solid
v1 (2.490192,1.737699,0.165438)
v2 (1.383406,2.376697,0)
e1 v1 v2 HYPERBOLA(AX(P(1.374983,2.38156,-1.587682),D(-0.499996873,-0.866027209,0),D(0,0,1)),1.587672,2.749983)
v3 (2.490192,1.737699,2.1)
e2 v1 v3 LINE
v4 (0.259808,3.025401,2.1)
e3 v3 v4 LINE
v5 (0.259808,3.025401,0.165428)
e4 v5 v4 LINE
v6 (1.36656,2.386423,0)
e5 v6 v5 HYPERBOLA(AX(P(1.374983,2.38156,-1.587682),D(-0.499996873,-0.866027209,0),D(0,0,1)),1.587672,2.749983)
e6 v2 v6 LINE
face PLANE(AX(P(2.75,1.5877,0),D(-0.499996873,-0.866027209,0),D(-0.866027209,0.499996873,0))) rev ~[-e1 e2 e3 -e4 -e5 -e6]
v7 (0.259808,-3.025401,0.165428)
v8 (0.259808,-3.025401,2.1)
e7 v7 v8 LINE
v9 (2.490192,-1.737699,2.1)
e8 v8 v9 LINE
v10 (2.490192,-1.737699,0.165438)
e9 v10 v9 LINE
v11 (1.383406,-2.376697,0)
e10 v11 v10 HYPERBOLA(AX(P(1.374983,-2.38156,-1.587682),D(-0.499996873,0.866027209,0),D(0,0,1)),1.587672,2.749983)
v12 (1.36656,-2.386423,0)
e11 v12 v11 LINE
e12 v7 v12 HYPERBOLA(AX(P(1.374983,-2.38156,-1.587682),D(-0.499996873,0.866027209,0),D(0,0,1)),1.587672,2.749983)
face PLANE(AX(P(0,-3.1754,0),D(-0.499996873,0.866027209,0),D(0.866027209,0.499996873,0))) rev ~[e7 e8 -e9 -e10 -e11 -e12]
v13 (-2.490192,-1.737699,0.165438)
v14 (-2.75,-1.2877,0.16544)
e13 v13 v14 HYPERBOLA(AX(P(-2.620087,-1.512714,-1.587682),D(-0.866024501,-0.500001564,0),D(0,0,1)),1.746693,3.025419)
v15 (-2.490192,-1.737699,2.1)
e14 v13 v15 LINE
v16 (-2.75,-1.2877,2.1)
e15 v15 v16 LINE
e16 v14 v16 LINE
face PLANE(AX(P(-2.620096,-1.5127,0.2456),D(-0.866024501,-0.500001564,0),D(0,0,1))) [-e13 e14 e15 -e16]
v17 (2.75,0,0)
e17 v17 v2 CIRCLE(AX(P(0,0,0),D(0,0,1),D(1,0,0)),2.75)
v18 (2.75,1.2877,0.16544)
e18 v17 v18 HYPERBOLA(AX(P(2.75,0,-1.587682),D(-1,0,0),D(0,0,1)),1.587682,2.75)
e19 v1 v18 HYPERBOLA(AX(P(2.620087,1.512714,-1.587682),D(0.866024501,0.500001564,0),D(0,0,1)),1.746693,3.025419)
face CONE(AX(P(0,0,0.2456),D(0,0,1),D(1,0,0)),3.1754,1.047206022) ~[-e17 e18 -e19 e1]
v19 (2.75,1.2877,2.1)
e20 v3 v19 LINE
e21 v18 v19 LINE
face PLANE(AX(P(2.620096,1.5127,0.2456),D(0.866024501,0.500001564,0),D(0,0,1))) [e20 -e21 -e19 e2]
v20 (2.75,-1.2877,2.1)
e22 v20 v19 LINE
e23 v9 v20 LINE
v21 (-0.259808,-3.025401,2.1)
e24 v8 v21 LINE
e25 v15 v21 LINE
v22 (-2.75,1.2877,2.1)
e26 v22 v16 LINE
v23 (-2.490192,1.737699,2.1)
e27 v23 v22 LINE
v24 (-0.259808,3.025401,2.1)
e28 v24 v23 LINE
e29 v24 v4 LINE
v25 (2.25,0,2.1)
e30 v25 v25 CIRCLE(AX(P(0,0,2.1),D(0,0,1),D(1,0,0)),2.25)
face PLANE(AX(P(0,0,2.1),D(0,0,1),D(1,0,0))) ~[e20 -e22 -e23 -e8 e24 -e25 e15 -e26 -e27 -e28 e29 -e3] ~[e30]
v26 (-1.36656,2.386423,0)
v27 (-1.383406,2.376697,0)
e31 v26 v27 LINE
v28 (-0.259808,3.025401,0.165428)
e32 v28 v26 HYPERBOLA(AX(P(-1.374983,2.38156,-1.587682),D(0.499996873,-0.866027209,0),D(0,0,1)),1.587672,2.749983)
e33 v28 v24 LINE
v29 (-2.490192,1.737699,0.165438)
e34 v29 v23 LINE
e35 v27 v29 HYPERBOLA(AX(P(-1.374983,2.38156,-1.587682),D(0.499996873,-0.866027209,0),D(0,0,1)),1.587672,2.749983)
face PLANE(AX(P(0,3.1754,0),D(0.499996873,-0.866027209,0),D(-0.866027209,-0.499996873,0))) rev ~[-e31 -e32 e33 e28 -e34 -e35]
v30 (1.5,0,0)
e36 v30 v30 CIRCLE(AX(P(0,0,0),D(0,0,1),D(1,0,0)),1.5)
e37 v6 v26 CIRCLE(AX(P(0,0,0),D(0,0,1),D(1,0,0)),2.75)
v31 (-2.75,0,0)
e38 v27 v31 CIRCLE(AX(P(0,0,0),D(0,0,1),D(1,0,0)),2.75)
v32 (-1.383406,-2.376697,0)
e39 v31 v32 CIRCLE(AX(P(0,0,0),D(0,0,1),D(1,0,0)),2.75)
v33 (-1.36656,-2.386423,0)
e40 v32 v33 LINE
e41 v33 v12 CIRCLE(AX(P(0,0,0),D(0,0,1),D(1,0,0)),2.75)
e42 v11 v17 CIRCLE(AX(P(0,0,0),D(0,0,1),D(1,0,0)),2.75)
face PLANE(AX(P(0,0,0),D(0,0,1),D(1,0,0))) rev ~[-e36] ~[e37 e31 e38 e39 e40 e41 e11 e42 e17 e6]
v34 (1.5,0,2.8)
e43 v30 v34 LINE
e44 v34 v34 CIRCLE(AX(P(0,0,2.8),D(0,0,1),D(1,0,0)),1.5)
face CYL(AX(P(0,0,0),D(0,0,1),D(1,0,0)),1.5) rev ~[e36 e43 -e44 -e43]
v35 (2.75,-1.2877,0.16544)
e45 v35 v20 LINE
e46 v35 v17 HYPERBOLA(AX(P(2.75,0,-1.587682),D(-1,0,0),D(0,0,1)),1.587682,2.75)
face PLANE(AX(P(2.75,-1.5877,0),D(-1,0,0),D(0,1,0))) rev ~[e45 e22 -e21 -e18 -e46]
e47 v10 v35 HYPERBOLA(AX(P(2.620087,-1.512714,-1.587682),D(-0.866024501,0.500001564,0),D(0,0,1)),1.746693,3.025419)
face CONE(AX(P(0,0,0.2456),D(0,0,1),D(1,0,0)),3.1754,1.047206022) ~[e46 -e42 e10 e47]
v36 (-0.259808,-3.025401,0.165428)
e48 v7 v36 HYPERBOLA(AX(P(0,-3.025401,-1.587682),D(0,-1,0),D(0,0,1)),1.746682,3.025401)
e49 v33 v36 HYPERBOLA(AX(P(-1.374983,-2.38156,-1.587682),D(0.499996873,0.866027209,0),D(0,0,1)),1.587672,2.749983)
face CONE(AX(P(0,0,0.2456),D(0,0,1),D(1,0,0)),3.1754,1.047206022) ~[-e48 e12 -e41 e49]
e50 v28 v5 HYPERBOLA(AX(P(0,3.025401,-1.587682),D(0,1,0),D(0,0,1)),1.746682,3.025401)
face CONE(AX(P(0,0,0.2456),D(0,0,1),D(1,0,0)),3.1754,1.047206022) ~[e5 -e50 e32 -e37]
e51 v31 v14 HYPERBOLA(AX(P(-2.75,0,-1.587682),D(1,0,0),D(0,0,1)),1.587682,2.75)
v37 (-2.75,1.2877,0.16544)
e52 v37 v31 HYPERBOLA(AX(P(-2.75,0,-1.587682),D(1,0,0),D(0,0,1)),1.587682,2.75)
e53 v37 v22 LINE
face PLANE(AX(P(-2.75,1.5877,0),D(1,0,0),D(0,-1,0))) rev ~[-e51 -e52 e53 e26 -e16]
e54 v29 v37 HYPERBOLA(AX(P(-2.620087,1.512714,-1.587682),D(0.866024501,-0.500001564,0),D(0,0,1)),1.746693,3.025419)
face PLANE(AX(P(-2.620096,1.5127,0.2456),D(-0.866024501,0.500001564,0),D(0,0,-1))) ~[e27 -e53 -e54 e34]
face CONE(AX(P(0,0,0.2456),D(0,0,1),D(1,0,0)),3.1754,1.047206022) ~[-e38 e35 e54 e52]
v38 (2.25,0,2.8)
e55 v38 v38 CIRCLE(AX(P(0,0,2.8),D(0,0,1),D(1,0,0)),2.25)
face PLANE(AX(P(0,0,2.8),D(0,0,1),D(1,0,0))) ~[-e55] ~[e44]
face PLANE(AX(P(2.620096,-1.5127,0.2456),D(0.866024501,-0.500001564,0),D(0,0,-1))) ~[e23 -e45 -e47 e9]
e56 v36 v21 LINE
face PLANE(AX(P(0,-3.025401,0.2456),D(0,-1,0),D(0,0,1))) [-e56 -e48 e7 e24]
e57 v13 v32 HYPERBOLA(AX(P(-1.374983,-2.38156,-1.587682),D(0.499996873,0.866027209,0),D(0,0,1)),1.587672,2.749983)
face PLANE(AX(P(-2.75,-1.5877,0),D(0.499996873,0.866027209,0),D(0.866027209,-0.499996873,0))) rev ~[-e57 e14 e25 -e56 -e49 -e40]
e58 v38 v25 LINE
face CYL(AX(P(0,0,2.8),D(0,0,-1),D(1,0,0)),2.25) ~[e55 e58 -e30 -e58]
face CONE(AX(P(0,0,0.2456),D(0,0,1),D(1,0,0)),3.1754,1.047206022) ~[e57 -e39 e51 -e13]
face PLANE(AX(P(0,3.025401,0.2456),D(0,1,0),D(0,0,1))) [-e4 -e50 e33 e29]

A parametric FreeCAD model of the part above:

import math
import FreeCAD as App
import Part
import Sketcher

V = App.Vector
Q = App.Units.Quantity


def edges_at(feature, points):
    """Names of the edges that pass closest to the given points."""
    edges = feature.Shape.Edges
    near = lambda p: min(range(len(edges)), key=lambda i: edges[i].distToShape(Part.Vertex(*p))[0])
    return sorted({f"Edge{near(p) + 1}" for p in points})

doc = App.newDocument("Part")
body = doc.addObject("PartDesign::Body", "Body")

sketch1 = doc.addObject("Sketcher::SketchObject", "Sketch")
body.addObject(sketch1)
sketch1.AttachmentSupport = (doc.XZ_Plane, [""])
sketch1.MapMode = "FlatFace"
sketch1.addGeometry([
    Part.LineSegment(V(2.75, 0, 0), V(1.5, 0, 0)),
    Part.LineSegment(V(1.5, 0, 0), V(1.5, 2.8, 0)),
    Part.LineSegment(V(1.5, 2.8, 0), V(2.25, 2.8, 0)),
    Part.LineSegment(V(2.25, 2.8, 0), V(2.25, 2.1, 0)),
    Part.LineSegment(V(2.25, 2.1, 0), V(3.1754, 2.1, 0)),
    Part.LineSegment(V(3.1754, 2.1, 0), V(3.1754, 0.2456, 0)),
    Part.LineSegment(V(3.1754, 0.2456, 0), V(2.75, 0, 0)),
], False)
sketch1.addConstraint([
    Sketcher.Constraint("Coincident", 0, 2, 1, 1),
    Sketcher.Constraint("Coincident", 1, 2, 2, 1),
    Sketcher.Constraint("Coincident", 2, 2, 3, 1),
    Sketcher.Constraint("Coincident", 3, 2, 4, 1),
    Sketcher.Constraint("Coincident", 4, 2, 5, 1),
    Sketcher.Constraint("Coincident", 5, 2, 6, 1),
    Sketcher.Constraint("Coincident", 6, 2, 0, 1),
    Sketcher.Constraint("Horizontal", 0),
    Sketcher.Constraint("Vertical", 1),
    Sketcher.Constraint("Horizontal", 2),
    Sketcher.Constraint("Vertical", 3),
    Sketcher.Constraint("Horizontal", 4),
    Sketcher.Constraint("Vertical", 5),
    Sketcher.Constraint("PointOnObject", 0, 2, -1),
    Sketcher.Constraint("DistanceY", 1, 1, 1, 2, 2.8),
    Sketcher.Constraint("DistanceY", 3, 2, 3, 1, 0.7),
    Sketcher.Constraint("DistanceX", -1, 1, 6, 2, 2.75),
    Sketcher.Constraint("Angle", 6, Q("-150.0005 deg")),
    Sketcher.Constraint("DistanceX", 0, 2, 0, 1, 1.25),
    Sketcher.Constraint("DistanceX", 2, 1, 2, 2, 0.75),
    Sketcher.Constraint("DistanceX", -1, 1, 4, 2, 3.1754),
])
revolution = doc.addObject("PartDesign::Revolution", "Revolution")
body.addObject(revolution)
revolution.Profile = sketch1
revolution.ReferenceAxis = (sketch1, ["V_Axis"])
revolution.Angle = 360

sketch2 = doc.addObject("Sketcher::SketchObject", "Sketch001")
body.addObject(sketch2)
sketch2.AttachmentSupport = (doc.XY_Plane, [""])
sketch2.MapMode = "FlatFace"
sketch2.addGeometry([
    Part.ArcOfCircle(Part.Circle(V(0, 0, 0), V(0, 0, 1), 3.1754), math.radians(150.000207), math.radians(209.999793)),
    Part.LineSegment(V(-2.75, -1.5877, 0), V(-2.75, 1.5877, 0)),
    Part.LineSegment(V(0, 3.1754, 0), V(-2.75, 1.5877, 0)),
    Part.ArcOfCircle(Part.Circle(V(0, 0, 0), V(0, 0, 1), 3.1754), math.radians(90), math.radians(150.000207)),
    Part.ArcOfCircle(Part.Circle(V(0, 0, 0), V(0, 0, 1), 3.1754), math.radians(-150.000207), math.radians(-90)),
    Part.LineSegment(V(0, -3.1754, 0), V(-2.75, -1.5877, 0)),
    Part.LineSegment(V(2.75, 1.5877, 0), V(0, 3.1754, 0)),
    Part.ArcOfCircle(Part.Circle(V(0, 0, 0), V(0, 0, 1), 3.1754), math.radians(29.999793), math.radians(90)),
    Part.ArcOfCircle(Part.Circle(V(0, 0, 0), V(0, 0, 1), 3.1754), math.radians(-90), math.radians(-29.999793)),
    Part.LineSegment(V(0, -3.1754, 0), V(2.75, -1.5877, 0)),
    Part.LineSegment(V(2.75, -1.5877, 0), V(2.75, 1.5877, 0)),
    Part.ArcOfCircle(Part.Circle(V(0, 0, 0), V(0, 0, 1), 3.1754), math.radians(-29.999793), math.radians(29.999793)),
], False)
sketch2.addConstraint([
    Sketcher.Constraint("Coincident", 0, 1, 1, 2),
    Sketcher.Constraint("Coincident", 1, 1, 0, 2),
    Sketcher.Constraint("Coincident", 2, 1, 3, 1),
    Sketcher.Constraint("Coincident", 3, 2, 2, 2),
    Sketcher.Constraint("Coincident", 4, 1, 5, 2),
    Sketcher.Constraint("Coincident", 5, 1, 4, 2),
    Sketcher.Constraint("Coincident", 6, 1, 7, 1),
    Sketcher.Constraint("Coincident", 7, 2, 6, 2),
    Sketcher.Constraint("Coincident", 8, 1, 9, 1),
    Sketcher.Constraint("Coincident", 9, 2, 8, 2),
    Sketcher.Constraint("Coincident", 10, 1, 11, 1),
    Sketcher.Constraint("Coincident", 11, 2, 10, 2),
    Sketcher.Constraint("Vertical", 1),
    Sketcher.Constraint("Vertical", 10),
    Sketcher.Constraint("Coincident", 0, 3, -1, 1),
    Sketcher.Constraint("Coincident", 3, 3, -1, 1),
    Sketcher.Constraint("Coincident", 4, 3, -1, 1),
    Sketcher.Constraint("Coincident", 7, 3, -1, 1),
    Sketcher.Constraint("Coincident", 8, 3, -1, 1),
    Sketcher.Constraint("Coincident", 11, 3, -1, 1),
    Sketcher.Constraint("Coincident", 3, 2, 0, 1),
    Sketcher.Constraint("Coincident", 4, 1, 1, 1),
    Sketcher.Constraint("Coincident", 7, 2, 2, 1),
    Sketcher.Constraint("Coincident", 8, 1, 5, 1),
    Sketcher.Constraint("Coincident", 10, 1, 9, 2),
    Sketcher.Constraint("PointOnObject", 2, 1, -2),
    Sketcher.Constraint("PointOnObject", 5, 1, -2),
    Sketcher.Constraint("Parallel", 5, 6),
    Sketcher.Constraint("Parallel", 2, 9),
    Sketcher.Constraint("Angle", 2, Q("-150.0002 deg")),
    Sketcher.Constraint("Radius", 0, 3.1754),
])
pocket1 = doc.addObject("PartDesign::Pocket", "Pocket")
body.addObject(pocket1)
pocket1.Profile = sketch2
pocket1.Type = "ThroughAll"
pocket1.Reversed = True
doc.recompute()

chamfer = doc.addObject("PartDesign::Chamfer", "Chamfer")
body.addObject(chamfer)
chamfer.Base = (pocket1, edges_at(pocket1, [
    (0, 3.175, 1.173),
    (-2.75, 1.588, 1.173),
    (2.75, 1.588, 1.173),
    (2.75, -1.588, 1.173),
    (0, -3.175, 1.173),
    (-2.75, -1.588, 1.173),
]))
chamfer.Size = 0.3

doc.recompute()
